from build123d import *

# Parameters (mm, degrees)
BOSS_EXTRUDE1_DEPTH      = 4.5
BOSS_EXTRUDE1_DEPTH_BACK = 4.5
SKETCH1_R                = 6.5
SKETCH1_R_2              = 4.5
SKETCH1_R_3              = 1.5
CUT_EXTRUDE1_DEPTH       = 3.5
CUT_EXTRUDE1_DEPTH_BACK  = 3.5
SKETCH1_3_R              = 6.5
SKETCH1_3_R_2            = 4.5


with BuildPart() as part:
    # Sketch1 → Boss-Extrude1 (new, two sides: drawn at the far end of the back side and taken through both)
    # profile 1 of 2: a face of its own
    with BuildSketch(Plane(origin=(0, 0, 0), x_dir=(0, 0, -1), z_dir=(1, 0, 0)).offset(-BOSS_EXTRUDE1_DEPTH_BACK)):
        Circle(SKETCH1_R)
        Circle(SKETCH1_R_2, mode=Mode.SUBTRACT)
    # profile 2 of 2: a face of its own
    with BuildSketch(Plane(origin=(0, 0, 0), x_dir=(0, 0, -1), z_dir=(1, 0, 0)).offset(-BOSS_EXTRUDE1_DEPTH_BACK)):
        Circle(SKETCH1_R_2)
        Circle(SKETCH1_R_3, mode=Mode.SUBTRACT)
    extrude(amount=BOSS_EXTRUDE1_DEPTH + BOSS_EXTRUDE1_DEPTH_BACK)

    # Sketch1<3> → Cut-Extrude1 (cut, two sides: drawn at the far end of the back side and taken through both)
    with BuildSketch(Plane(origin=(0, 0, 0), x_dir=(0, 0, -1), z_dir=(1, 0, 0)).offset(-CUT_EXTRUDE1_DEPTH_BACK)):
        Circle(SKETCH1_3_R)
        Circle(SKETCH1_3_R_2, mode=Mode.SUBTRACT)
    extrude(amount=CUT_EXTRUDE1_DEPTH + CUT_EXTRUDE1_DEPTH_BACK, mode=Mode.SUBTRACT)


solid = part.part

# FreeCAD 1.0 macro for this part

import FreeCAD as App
import Part
import Sketcher
Q = App.Units.Quantity

doc = App.newDocument("Part")
body = doc.addObject("PartDesign::Body", "Body")

# Sketch on YZ plane
sketch1 = doc.addObject("Sketcher::SketchObject", "Sketch")
body.addObject(sketch1)
sketch1.AttachmentSupport = (doc.YZ_Plane, [""])
sketch1.MapMode = "FlatFace"
sketch1.addGeometry(Part.Circle(App.Vector(0, 0, 0), App.Vector(0, 0, 1), 6.5), False)
sketch1.addGeometry(Part.Circle(App.Vector(0, 0, 0), App.Vector(0, 0, 1), 1.5), False)
sketch1.addConstraint(Sketcher.Constraint("Coincident", 0, 3, -1, 1))
sketch1.addConstraint(Sketcher.Constraint("Coincident", 1, 3, -1, 1))
sketch1.addConstraint(Sketcher.Constraint("Diameter", 0, Q("13 mm")))
sketch1.addConstraint(Sketcher.Constraint("Diameter", 1, Q("3 mm")))
pad1 = doc.addObject("PartDesign::Pad", "Pad")
body.addObject(pad1)
pad1.Profile = sketch1
pad1.Type = "TwoLengths"
pad1.Length = 4.5
pad1.Length2 = 4.5

# Sketch on YZ plane
sketch2 = doc.addObject("Sketcher::SketchObject", "Sketch001")
body.addObject(sketch2)
sketch2.AttachmentSupport = (doc.YZ_Plane, [""])
sketch2.MapMode = "FlatFace"
sketch2.addGeometry(Part.Circle(App.Vector(0, 0, 0), App.Vector(0, 0, 1), 6.5), False)
sketch2.addGeometry(Part.Circle(App.Vector(0, 0, 0), App.Vector(0, 0, 1), 4.5), False)
sketch2.addConstraint(Sketcher.Constraint("Coincident", 0, 3, -1, 1))
sketch2.addConstraint(Sketcher.Constraint("Coincident", 1, 3, -1, 1))
sketch2.addConstraint(Sketcher.Constraint("Diameter", 0, Q("13 mm")))
sketch2.addConstraint(Sketcher.Constraint("Diameter", 1, Q("9 mm")))
pocket1 = doc.addObject("PartDesign::Pocket", "Pocket")
body.addObject(pocket1)
pocket1.Profile = sketch2
pocket1.Type = "TwoLengths"
pocket1.Length = 3.5
pocket1.Length2 = 3.5
pocket1.Reversed = True

doc.recompute()
